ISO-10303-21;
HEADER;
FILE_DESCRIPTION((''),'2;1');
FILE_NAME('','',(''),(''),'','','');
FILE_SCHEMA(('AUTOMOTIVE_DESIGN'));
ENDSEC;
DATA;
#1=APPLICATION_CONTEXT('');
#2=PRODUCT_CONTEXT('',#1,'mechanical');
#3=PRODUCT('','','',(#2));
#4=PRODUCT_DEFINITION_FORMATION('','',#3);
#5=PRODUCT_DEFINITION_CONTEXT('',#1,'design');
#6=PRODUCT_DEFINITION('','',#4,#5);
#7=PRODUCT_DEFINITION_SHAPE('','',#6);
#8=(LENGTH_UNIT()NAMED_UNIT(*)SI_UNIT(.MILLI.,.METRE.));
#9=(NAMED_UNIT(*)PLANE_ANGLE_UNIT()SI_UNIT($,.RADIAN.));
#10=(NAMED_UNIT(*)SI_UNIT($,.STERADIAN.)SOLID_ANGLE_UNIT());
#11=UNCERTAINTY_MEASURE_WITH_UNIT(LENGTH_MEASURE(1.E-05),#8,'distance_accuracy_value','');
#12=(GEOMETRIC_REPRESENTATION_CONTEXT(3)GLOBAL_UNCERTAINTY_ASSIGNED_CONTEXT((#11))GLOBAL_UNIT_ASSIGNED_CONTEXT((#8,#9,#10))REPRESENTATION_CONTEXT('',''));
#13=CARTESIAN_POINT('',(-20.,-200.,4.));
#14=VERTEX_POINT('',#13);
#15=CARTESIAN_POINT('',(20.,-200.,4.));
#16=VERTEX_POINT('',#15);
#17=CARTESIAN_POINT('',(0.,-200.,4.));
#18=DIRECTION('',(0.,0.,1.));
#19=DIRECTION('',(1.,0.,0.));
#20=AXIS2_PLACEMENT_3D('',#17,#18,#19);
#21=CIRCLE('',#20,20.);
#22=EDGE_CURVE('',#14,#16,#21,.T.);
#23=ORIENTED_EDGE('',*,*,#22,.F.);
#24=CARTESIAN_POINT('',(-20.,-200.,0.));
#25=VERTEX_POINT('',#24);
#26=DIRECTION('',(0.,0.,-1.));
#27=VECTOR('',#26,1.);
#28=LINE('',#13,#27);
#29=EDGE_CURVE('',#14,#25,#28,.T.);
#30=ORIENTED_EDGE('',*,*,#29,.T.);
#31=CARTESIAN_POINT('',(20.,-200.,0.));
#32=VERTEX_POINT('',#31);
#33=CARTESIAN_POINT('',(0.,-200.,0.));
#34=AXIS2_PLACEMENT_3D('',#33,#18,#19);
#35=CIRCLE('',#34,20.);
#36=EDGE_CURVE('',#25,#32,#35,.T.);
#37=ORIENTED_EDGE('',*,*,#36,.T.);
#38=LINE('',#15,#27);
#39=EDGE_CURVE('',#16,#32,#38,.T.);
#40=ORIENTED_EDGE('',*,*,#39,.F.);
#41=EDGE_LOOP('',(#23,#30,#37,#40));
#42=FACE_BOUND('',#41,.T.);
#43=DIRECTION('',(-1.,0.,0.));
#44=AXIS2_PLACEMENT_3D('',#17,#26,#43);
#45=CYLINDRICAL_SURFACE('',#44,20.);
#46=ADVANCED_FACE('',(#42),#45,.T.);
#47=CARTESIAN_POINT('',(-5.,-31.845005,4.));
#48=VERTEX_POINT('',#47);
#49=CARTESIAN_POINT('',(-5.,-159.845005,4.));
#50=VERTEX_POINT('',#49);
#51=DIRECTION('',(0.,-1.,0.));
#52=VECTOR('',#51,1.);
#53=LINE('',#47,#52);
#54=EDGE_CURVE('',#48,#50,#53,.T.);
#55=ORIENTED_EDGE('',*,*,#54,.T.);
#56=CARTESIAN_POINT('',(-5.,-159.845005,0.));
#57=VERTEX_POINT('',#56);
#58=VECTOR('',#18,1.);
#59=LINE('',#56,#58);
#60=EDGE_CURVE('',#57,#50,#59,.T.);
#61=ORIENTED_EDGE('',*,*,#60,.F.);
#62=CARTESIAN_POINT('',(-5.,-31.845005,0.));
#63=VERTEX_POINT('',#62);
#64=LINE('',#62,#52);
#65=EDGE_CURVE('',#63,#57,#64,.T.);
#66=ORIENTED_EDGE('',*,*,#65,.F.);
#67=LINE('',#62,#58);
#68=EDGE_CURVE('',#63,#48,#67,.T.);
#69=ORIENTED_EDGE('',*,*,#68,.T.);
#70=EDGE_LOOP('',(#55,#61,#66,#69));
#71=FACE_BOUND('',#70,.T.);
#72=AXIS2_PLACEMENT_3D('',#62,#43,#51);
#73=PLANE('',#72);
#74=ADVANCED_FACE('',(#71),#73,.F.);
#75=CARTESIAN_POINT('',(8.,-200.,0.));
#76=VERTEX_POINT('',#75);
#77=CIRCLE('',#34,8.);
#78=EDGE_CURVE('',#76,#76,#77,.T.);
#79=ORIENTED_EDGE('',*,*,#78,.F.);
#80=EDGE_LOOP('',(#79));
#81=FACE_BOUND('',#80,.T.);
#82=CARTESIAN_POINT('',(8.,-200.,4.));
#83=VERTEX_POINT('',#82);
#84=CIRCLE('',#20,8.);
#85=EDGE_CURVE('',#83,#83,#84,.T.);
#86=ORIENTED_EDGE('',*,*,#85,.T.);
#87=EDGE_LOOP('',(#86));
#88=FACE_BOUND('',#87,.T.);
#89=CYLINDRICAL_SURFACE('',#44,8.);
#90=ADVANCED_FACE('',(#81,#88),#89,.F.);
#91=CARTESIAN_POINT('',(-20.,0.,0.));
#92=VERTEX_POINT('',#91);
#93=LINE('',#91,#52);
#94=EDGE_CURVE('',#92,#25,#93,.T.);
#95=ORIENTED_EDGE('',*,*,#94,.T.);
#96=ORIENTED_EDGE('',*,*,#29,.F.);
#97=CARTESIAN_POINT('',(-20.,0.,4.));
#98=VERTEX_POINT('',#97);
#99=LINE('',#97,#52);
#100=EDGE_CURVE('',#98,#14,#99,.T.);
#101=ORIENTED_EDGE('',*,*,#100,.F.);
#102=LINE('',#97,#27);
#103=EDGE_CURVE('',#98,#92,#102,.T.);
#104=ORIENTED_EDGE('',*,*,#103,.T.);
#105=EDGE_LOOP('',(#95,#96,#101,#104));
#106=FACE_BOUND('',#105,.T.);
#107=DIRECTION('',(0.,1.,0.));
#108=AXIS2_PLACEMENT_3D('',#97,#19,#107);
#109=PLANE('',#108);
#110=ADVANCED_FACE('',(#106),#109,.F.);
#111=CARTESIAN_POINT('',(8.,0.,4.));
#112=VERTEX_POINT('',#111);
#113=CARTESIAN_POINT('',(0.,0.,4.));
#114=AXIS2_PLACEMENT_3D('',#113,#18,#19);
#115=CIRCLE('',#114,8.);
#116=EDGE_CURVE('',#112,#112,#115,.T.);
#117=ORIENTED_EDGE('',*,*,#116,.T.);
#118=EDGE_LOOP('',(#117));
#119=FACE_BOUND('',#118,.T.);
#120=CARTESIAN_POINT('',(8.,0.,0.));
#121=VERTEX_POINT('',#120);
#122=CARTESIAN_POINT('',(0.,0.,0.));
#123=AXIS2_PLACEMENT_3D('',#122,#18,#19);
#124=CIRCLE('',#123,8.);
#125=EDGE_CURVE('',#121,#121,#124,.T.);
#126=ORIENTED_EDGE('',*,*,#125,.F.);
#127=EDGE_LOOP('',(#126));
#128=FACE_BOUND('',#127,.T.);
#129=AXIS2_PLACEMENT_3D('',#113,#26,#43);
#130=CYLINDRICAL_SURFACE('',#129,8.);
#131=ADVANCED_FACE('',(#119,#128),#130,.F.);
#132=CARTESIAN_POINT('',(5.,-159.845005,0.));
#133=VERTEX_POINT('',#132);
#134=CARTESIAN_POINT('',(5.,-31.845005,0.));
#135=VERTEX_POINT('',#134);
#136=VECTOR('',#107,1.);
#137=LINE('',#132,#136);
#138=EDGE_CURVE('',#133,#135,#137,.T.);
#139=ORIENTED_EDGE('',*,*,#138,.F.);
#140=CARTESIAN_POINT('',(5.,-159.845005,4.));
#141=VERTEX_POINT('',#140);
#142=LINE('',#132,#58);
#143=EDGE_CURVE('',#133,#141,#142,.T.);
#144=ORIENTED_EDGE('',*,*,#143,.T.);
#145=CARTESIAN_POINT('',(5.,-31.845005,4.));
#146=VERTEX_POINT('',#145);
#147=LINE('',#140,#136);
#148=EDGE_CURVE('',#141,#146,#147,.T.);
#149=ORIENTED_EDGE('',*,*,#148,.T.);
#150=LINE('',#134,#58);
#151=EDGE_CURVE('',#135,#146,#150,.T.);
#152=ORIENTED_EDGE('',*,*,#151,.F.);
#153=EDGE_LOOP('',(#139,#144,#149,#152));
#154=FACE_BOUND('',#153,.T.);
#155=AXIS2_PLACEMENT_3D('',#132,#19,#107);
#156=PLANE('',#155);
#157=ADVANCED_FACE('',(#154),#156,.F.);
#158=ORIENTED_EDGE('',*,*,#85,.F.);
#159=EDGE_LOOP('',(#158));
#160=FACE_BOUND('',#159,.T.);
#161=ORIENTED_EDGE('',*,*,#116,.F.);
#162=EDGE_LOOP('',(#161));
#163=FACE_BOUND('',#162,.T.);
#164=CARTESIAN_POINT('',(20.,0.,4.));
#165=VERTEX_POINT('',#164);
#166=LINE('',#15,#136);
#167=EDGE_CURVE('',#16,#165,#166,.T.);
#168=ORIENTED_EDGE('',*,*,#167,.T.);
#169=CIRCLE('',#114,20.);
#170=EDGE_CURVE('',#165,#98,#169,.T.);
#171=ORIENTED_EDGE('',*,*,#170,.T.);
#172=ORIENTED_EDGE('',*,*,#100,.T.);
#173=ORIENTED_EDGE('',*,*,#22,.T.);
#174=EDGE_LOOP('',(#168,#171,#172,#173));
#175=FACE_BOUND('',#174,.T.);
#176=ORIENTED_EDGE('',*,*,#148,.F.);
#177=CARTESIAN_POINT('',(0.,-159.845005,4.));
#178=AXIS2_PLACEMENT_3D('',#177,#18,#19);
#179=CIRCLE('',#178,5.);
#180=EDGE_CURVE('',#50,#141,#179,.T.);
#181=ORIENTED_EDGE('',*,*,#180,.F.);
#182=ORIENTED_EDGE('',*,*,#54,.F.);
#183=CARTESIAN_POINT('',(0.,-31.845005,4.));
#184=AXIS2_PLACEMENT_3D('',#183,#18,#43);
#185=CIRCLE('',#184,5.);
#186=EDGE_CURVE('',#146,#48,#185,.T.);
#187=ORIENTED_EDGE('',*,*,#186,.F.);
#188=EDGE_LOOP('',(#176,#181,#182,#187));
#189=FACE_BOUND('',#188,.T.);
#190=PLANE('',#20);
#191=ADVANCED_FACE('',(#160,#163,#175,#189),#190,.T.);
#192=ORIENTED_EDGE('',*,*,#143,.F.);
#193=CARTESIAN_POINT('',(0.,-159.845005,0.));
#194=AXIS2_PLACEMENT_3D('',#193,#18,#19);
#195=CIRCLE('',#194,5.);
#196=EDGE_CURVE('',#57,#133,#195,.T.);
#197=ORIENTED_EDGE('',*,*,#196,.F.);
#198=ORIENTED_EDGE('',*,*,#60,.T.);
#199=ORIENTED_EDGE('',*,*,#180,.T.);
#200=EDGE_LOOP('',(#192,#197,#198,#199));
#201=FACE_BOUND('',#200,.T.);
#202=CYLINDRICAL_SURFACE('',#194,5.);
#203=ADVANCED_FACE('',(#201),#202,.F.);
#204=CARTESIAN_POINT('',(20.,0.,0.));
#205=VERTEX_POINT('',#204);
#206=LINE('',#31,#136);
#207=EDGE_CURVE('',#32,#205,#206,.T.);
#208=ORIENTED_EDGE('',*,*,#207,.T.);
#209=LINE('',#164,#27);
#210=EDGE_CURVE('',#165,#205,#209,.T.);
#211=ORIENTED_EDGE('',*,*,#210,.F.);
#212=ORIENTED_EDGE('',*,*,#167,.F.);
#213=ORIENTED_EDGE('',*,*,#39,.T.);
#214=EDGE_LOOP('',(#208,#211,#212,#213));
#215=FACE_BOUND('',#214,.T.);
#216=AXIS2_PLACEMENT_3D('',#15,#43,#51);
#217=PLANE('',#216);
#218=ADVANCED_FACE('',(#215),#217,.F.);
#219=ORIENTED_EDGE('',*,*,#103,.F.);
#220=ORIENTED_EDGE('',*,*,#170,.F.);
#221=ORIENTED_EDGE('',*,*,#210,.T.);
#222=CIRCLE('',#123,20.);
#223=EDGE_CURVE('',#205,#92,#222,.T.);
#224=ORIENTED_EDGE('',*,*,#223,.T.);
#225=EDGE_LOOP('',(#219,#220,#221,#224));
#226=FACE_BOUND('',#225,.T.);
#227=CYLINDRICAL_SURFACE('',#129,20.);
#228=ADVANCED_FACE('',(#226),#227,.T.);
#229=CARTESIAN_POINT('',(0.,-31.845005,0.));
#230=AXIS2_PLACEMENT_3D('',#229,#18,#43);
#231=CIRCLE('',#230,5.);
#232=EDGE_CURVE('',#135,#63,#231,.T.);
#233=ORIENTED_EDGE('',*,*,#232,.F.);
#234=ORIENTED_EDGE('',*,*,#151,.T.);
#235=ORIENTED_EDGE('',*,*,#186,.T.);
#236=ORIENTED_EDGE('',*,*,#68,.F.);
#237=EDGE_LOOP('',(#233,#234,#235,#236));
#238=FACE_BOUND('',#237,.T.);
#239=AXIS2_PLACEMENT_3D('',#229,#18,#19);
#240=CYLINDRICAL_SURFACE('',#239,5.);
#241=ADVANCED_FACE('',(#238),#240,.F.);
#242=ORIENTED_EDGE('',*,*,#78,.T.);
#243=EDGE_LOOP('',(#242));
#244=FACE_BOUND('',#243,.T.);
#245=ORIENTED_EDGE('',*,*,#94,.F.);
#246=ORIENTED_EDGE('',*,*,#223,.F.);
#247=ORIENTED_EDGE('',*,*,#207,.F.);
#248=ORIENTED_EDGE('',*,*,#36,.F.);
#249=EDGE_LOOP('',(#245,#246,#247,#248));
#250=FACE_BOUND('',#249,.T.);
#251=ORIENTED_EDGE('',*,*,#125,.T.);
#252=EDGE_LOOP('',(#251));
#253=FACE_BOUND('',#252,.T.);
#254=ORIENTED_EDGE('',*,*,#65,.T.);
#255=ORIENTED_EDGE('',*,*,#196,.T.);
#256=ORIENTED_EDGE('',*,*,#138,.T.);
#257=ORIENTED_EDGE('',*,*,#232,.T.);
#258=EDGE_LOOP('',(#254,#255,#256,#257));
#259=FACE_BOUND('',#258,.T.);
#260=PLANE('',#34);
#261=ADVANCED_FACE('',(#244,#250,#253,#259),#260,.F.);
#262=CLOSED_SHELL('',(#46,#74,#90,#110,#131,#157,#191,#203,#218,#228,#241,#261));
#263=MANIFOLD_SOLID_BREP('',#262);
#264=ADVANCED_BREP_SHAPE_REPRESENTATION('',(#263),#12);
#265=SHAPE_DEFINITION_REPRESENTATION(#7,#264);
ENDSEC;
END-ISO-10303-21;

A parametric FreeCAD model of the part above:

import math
import FreeCAD as App
import Part
import Sketcher
from FreeCAD import Vector

doc = App.newDocument("Part")
params = doc.addObject("Spreadsheet::Sheet", "Params")
for row, (alias, value) in enumerate([
    ("sketch1_diameter", "16 mm"),
    ("sketch1_radius", "20 mm"),
    ("sketch1_height", "200 mm"),
    ("pad1_length", "4 mm"),
    ("sketch2_radius", "5 mm"),
    ("sketch2_height", "128 mm"),
], start=1):
    params.set(f"A{row}", alias)
    params.set(f"B{row}", "=" + value)
    params.setAlias(f"B{row}", alias)

body = doc.addObject("PartDesign::Body", "Body")

# Sketch on XY plane
sketch1 = body.newObject("Sketcher::SketchObject", "Sketch")
sketch1.AttachmentSupport = (doc.getObject("XY_Plane"), [""])
sketch1.MapMode = "FlatFace"
sketch1.addGeometry(Part.LineSegment(Vector(-20, 0, 0), Vector(-20, -200, 0)), False)
sketch1.addGeometry(Part.ArcOfCircle(Part.Circle(Vector(0, -200, 0), Vector(0, 0, 1), 20), math.radians(180), math.radians(360)), False)
sketch1.addGeometry(Part.LineSegment(Vector(20, -200, 0), Vector(20, 0, 0)), False)
sketch1.addGeometry(Part.ArcOfCircle(Part.Circle(Vector(0, 0, 0), Vector(0, 0, 1), 20), math.radians(0), math.radians(180)), False)
sketch1.addGeometry(Part.Circle(Vector(0, -200, 0), Vector(0, 0, 1), 8), False)
sketch1.addGeometry(Part.Circle(Vector(0, 0, 0), Vector(0, 0, 1), 8), False)
sketch1.addConstraint(Sketcher.Constraint("Tangent", 0, 2, 1, 1))
sketch1.addConstraint(Sketcher.Constraint("Tangent", 1, 2, 2, 1))
sketch1.addConstraint(Sketcher.Constraint("Tangent", 2, 2, 3, 1))
sketch1.addConstraint(Sketcher.Constraint("Tangent", 3, 2, 0, 1))
sketch1.addConstraint(Sketcher.Constraint("Vertical", 0))
sketch1.addConstraint(Sketcher.Constraint("Vertical", 2))
sketch1.addConstraint(Sketcher.Constraint("Coincident", 3, 3, -1, 1))
sketch1.addConstraint(Sketcher.Constraint("Coincident", 5, 3, -1, 1))
sketch1.addConstraint(Sketcher.Constraint("Coincident", 4, 3, 1, 3))
sketch1.addConstraint(Sketcher.Constraint("Equal", 4, 5))
sketch1.addConstraint(Sketcher.Constraint("Diameter", 4, 16.0))
sketch1.addConstraint(Sketcher.Constraint("Radius", 1, 20.0))
sketch1.addConstraint(Sketcher.Constraint("DistanceY", 0, 2, 0, 1, 200.0))
sketch1.setExpression("Constraints[10]", "Params.sketch1_diameter")
sketch1.setExpression("Constraints[11]", "Params.sketch1_radius")
sketch1.setExpression("Constraints[12]", "Params.sketch1_height")
pad1 = body.newObject("PartDesign::Pad", "Pad")
pad1.Profile = sketch1
pad1.setExpression("Length", "Params.pad1_length")

# Sketch on XY plane
sketch2 = body.newObject("Sketcher::SketchObject", "Sketch001")
sketch2.AttachmentSupport = (doc.getObject("XY_Plane"), [""])
sketch2.MapMode = "FlatFace"
sketch2.AttachmentOffset = App.Placement(Vector(0, 0, 4), App.Rotation())
sketch2.addGeometry(Part.LineSegment(Vector(-5, -32, 0), Vector(-5, -160, 0)), False)
sketch2.addGeometry(Part.ArcOfCircle(Part.Circle(Vector(0, -160, 0), Vector(0, 0, 1), 5), math.radians(180), math.radians(360)), False)
sketch2.addGeometry(Part.LineSegment(Vector(5, -160, 0), Vector(5, -32, 0)), False)
sketch2.addGeometry(Part.ArcOfCircle(Part.Circle(Vector(0, -32, 0), Vector(0, 0, 1), 5), math.radians(0), math.radians(180)), False)
sketch2.addConstraint(Sketcher.Constraint("Tangent", 0, 2, 1, 1))
sketch2.addConstraint(Sketcher.Constraint("Tangent", 1, 2, 2, 1))
sketch2.addConstraint(Sketcher.Constraint("Tangent", 2, 2, 3, 1))
sketch2.addConstraint(Sketcher.Constraint("Tangent", 3, 2, 0, 1))
sketch2.addConstraint(Sketcher.Constraint("Vertical", 0))
sketch2.addConstraint(Sketcher.Constraint("Vertical", 2))
sketch2.addConstraint(Sketcher.Constraint("PointOnObject", 1, 3, -2))
sketch2.addConstraint(Sketcher.Constraint("Radius", 1, 5.0))
sketch2.addConstraint(Sketcher.Constraint("DistanceY", 0, 2, 0, 1, 128.0))
sketch2.addConstraint(Sketcher.Constraint("DistanceY", 1, 3, -1, 1, 159.845005))
sketch2.setExpression("Constraints[7]", "Params.sketch2_radius")
sketch2.setExpression("Constraints[8]", "Params.sketch2_height")
pocket1 = body.newObject("PartDesign::Pocket", "Pocket")
pocket1.Profile = sketch2
pocket1.Type = "ThroughAll"

doc.recompute()
